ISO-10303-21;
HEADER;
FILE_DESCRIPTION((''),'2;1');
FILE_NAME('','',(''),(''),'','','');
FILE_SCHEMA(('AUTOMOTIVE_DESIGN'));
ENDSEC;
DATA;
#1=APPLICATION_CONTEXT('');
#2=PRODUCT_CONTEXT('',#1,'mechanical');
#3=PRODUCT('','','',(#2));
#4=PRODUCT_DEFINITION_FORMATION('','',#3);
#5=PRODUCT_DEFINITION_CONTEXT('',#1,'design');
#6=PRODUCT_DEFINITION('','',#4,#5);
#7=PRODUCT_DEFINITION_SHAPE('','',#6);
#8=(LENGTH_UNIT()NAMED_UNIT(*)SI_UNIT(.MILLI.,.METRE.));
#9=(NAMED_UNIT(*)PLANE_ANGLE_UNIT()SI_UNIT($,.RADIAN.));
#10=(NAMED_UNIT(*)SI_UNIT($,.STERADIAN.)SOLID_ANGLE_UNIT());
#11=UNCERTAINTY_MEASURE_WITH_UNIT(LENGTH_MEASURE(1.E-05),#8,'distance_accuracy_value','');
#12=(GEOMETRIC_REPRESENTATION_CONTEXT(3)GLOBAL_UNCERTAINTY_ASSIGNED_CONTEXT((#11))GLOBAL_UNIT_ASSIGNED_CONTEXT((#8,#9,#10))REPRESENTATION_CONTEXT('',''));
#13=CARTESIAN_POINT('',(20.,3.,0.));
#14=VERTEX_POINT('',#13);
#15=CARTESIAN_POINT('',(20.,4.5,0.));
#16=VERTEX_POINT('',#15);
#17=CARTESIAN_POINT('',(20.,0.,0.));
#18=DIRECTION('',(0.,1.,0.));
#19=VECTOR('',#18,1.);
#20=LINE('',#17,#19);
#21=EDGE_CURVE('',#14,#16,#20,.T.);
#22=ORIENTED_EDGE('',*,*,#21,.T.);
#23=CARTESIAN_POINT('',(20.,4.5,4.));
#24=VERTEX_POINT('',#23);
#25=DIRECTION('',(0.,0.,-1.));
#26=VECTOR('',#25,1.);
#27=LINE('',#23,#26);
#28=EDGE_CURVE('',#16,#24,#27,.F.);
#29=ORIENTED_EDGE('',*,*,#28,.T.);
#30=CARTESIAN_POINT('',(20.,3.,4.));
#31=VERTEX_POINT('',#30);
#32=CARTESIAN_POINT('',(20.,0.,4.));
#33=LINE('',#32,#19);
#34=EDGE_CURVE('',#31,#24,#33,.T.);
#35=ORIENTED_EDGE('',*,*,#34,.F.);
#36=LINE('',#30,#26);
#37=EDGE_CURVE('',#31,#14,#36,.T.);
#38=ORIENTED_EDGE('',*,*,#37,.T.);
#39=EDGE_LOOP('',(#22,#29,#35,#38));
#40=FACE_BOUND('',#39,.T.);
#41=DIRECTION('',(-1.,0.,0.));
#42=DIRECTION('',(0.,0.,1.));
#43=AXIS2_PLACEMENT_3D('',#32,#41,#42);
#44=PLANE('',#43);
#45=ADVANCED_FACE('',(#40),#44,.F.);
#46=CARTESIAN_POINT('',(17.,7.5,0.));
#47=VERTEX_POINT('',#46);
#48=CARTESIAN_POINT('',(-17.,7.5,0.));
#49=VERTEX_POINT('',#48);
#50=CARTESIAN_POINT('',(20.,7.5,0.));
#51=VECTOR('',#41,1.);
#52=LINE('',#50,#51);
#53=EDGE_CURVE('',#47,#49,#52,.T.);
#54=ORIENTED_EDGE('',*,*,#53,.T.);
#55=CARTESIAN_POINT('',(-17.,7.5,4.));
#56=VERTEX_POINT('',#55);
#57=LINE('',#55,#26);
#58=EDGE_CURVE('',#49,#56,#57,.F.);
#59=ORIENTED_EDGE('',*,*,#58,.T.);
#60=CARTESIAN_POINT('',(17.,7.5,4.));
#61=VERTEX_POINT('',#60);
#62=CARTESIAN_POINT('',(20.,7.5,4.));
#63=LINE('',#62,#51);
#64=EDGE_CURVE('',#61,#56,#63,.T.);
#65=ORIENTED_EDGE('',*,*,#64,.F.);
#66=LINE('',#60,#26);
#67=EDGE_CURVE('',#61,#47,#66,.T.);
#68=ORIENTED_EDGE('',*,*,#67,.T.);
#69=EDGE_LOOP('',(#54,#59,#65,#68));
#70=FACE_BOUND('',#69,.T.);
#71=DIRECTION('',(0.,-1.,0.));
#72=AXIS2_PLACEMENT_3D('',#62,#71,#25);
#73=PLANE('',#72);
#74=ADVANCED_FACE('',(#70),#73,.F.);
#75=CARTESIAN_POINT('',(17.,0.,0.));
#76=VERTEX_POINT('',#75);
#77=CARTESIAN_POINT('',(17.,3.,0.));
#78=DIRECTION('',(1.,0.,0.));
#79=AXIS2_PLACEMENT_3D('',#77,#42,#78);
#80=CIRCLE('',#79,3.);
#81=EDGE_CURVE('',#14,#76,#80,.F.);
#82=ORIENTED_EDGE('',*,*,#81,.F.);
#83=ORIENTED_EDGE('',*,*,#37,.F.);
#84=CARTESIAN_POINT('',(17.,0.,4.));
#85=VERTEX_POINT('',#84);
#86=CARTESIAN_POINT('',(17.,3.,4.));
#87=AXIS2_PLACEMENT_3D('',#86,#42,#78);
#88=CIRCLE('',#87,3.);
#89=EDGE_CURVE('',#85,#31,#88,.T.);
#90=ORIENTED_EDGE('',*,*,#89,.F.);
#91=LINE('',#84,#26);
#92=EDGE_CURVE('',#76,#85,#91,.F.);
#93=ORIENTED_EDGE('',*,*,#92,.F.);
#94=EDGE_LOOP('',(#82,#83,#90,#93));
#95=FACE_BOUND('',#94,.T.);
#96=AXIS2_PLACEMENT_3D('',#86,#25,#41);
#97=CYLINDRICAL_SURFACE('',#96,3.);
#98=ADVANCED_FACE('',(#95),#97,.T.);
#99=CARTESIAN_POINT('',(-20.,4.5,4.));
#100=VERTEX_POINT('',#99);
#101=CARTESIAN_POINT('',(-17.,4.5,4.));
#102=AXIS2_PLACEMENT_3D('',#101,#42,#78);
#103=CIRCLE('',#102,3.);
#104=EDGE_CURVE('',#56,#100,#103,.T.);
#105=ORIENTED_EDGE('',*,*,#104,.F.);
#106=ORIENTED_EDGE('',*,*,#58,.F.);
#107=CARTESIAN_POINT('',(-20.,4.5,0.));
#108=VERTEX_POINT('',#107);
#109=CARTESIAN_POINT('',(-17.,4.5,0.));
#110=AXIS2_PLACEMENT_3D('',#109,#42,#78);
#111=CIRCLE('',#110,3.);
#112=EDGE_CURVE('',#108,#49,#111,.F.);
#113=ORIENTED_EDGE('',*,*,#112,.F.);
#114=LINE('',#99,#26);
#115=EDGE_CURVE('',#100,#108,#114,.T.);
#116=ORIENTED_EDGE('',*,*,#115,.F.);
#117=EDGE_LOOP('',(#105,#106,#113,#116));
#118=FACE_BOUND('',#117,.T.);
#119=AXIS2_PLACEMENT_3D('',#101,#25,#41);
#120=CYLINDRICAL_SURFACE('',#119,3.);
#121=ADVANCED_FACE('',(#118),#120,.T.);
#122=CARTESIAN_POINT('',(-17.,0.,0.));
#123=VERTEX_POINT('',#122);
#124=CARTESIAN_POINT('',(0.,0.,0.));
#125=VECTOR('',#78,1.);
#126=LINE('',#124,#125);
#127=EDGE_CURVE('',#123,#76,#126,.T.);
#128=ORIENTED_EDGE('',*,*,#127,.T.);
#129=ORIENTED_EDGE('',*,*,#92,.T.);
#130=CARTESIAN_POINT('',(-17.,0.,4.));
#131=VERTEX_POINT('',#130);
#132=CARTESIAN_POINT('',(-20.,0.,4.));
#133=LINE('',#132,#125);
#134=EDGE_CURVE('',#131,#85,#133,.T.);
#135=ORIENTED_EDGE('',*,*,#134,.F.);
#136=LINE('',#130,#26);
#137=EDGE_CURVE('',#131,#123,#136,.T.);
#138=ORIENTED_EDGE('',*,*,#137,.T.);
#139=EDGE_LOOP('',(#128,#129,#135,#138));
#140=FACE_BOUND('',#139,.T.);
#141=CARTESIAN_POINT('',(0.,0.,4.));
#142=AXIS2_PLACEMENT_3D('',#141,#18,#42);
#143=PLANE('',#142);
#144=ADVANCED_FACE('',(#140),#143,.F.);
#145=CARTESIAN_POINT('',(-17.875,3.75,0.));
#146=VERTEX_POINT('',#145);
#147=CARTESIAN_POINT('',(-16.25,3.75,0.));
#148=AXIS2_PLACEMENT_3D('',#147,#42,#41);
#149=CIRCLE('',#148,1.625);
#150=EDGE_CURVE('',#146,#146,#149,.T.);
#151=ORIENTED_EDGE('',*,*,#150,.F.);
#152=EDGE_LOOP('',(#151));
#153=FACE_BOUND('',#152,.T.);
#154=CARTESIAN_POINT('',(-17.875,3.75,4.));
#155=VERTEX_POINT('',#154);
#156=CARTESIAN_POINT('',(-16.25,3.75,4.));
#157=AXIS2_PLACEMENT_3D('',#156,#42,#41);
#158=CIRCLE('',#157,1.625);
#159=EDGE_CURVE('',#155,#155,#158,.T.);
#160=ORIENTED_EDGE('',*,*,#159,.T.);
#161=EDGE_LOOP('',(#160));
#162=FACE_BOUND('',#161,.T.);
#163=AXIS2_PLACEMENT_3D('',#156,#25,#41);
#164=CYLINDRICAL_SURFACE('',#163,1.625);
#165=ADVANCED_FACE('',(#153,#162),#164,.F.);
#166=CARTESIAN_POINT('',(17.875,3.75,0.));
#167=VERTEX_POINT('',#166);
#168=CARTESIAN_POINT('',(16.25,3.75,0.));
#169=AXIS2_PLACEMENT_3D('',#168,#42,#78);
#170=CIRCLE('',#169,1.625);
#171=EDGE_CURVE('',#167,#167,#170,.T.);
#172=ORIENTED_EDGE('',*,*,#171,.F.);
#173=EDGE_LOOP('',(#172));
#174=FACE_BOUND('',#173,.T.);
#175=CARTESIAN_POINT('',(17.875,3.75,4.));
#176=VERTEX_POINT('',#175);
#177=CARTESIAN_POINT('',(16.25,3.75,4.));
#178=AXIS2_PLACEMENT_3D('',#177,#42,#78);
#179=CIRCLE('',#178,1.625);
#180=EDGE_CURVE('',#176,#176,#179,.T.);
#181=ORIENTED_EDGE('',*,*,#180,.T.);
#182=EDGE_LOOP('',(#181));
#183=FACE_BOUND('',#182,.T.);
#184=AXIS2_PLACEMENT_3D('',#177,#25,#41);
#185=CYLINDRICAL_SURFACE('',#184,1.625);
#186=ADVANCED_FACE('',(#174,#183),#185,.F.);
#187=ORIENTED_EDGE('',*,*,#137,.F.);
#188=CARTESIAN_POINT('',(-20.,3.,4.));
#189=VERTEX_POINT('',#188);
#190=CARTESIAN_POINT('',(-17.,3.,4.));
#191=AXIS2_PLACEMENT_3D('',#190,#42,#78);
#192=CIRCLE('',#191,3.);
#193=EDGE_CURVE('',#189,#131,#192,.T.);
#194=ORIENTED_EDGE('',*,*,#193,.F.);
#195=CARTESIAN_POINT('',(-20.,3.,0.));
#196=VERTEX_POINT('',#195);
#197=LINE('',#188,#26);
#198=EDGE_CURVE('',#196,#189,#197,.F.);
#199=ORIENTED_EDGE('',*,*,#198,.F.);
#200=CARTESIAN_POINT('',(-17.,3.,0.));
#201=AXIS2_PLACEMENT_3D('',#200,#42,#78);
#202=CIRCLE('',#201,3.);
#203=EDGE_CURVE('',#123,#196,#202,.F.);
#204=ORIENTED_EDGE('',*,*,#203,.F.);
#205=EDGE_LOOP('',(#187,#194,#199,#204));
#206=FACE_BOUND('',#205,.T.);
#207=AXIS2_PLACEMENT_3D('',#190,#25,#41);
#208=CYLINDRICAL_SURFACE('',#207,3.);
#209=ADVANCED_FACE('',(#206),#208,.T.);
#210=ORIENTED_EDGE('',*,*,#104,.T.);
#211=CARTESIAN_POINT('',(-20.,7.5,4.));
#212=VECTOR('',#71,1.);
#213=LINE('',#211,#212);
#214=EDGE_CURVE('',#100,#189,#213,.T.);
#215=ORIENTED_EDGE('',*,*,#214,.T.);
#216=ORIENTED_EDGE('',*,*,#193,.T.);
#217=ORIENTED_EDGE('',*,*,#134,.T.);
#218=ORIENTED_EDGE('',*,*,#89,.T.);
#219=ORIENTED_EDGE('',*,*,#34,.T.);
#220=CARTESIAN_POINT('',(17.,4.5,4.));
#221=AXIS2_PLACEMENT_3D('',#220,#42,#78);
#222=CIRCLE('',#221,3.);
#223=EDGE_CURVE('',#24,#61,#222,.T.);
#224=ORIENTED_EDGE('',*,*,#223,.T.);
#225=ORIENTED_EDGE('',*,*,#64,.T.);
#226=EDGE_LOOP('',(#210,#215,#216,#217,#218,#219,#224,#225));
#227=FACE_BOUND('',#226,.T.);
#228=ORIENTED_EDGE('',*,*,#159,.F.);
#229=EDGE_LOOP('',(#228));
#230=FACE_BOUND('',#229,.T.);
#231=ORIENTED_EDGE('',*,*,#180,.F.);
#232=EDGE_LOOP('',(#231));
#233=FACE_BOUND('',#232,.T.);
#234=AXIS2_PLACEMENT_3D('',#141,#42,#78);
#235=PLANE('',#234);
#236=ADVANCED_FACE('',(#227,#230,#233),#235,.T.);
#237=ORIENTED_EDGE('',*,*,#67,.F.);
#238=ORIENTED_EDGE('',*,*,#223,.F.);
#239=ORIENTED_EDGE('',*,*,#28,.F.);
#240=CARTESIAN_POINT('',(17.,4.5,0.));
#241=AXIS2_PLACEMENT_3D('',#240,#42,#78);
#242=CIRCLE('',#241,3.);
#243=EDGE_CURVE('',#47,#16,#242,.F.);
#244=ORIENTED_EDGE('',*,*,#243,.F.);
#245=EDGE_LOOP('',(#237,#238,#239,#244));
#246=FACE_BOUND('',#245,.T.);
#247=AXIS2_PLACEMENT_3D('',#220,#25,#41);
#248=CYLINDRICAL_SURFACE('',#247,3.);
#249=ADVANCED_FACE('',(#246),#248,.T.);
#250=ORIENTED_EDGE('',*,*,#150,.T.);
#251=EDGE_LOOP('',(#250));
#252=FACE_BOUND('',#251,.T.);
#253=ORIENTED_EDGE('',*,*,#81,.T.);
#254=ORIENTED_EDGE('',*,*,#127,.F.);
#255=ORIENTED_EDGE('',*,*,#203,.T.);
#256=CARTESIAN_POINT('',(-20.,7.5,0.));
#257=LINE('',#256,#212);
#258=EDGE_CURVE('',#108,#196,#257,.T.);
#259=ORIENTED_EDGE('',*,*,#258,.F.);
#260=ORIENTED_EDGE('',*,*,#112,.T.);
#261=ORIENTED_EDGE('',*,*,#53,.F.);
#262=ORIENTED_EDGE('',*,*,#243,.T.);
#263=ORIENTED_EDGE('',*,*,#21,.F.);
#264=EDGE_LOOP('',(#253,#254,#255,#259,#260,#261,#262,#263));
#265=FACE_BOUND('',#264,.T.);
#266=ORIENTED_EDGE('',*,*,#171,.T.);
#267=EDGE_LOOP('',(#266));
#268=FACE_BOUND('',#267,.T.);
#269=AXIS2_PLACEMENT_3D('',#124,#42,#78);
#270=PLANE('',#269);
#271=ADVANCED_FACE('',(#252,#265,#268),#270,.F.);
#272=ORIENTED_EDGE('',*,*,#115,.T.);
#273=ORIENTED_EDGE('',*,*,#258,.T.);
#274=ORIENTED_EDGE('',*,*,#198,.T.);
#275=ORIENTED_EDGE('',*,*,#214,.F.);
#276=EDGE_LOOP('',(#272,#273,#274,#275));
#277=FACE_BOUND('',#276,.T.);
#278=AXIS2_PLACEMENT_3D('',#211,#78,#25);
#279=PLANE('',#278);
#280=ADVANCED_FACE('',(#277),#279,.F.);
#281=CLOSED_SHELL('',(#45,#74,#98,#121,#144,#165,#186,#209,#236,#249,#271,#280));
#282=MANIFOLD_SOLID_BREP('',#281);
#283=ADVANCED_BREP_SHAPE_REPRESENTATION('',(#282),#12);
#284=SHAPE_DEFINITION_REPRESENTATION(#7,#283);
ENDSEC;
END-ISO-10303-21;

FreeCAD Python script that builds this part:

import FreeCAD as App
import Part
import Sketcher
from FreeCAD import Vector
Q = App.Units.Quantity


def edges_at(feature, points):
    """Names of the edges that pass closest to the given points."""
    edges = feature.Shape.Edges
    near = lambda p: min(range(len(edges)), key=lambda i: edges[i].distToShape(Part.Vertex(*p))[0])
    return sorted({f"Edge{near(p) + 1}" for p in points})

doc = App.newDocument("Part")
body = doc.addObject("PartDesign::Body", "Body")

# Sketch on XY plane
sketch1 = body.newObject("Sketcher::SketchObject", "Sketch")
sketch1.AttachmentSupport = (doc.getObject("XY_Plane"), [""])
sketch1.MapMode = "FlatFace"
sketch1.addGeometry(Part.LineSegment(Vector(20, 0, 0), Vector(20, 7.5, 0)), False)
sketch1.addGeometry(Part.LineSegment(Vector(20, 7.5, 0), Vector(-20, 7.5, 0)), False)
sketch1.addGeometry(Part.LineSegment(Vector(-20, 7.5, 0), Vector(-20, 0, 0)), False)
sketch1.addGeometry(Part.LineSegment(Vector(-20, 0, 0), Vector(20, 0, 0)), False)
sketch1.addGeometry(Part.Circle(Vector(-16.2, 3.8, 0), Vector(0, 0, 1), 1.6), False)
sketch1.addGeometry(Part.Circle(Vector(16.2, 3.8, 0), Vector(0, 0, 1), 1.6), False)
sketch1.addConstraint(Sketcher.Constraint("Coincident", 0, 2, 1, 1))
sketch1.addConstraint(Sketcher.Constraint("Coincident", 1, 2, 2, 1))
sketch1.addConstraint(Sketcher.Constraint("Coincident", 2, 2, 3, 1))
sketch1.addConstraint(Sketcher.Constraint("Coincident", 3, 2, 0, 1))
sketch1.addConstraint(Sketcher.Constraint("Vertical", 0))
sketch1.addConstraint(Sketcher.Constraint("Horizontal", 1))
sketch1.addConstraint(Sketcher.Constraint("Vertical", 2))
sketch1.addConstraint(Sketcher.Constraint("Horizontal", 3))
sketch1.addConstraint(Sketcher.Constraint("Equal", 4, 5))
sketch1.addConstraint(Sketcher.Constraint("Symmetric", 2, 2, 3, 2, -1, 1))
sketch1.addConstraint(Sketcher.Constraint("Symmetric", 4, 3, 5, 3, -2))
sketch1.addConstraint(Sketcher.Constraint("Diameter", 4, Q("3.25 mm")))
sketch1.addConstraint(Sketcher.Constraint("DistanceX", 1, 2, 1, 1, Q("40 mm")))
sketch1.addConstraint(Sketcher.Constraint("DistanceY", 0, 1, 0, 2, Q("7.5 mm")))
sketch1.addConstraint(Sketcher.Constraint("DistanceX", 4, 3, 5, 3, Q("32.5 mm")))
sketch1.addConstraint(Sketcher.Constraint("DistanceY", -1, 1, 4, 3, Q("3.75 mm")))
pad1 = body.newObject("PartDesign::Pad", "Pad")
pad1.Profile = sketch1
pad1.Length = 4
doc.recompute()

fillet = body.newObject("PartDesign::Fillet", "Fillet")
fillet.Base = (pad1, edges_at(pad1, [
    (-20, 0, 2),
    (-20, 7.5, 2),
    (20, 7.5, 2),
    (20, 0, 2),
]))
fillet.Radius = 3

doc.recompute()
